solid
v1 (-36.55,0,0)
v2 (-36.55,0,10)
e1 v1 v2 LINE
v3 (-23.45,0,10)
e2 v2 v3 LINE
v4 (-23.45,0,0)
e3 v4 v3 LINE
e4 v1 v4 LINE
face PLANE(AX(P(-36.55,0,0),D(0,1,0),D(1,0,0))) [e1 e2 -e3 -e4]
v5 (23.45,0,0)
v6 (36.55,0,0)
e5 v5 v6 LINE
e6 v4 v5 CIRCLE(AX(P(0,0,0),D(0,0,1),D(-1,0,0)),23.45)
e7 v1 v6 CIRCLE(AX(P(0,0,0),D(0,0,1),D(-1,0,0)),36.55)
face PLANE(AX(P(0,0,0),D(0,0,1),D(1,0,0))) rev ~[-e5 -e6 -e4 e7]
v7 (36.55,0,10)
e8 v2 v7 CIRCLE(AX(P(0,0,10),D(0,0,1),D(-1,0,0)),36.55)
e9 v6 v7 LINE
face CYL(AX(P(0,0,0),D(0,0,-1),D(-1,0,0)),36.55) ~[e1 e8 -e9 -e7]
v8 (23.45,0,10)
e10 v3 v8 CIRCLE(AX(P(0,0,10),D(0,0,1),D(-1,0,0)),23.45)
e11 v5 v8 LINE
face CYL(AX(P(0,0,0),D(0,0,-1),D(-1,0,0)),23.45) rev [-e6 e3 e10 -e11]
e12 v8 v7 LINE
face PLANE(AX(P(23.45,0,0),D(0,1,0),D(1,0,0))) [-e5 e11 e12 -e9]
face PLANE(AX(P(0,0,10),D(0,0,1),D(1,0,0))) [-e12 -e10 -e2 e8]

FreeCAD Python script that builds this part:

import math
import FreeCAD as App
import Part
import Sketcher

V = App.Vector

doc = App.newDocument("Part")
body = doc.addObject("PartDesign::Body", "Body")

# Sketch on XY plane
sketch1 = body.newObject("Sketcher::SketchObject", "Sketch")
sketch1.AttachmentSupport = (doc.getObject("XY_Plane"), [""])
sketch1.MapMode = "FlatFace"
sketch1.addGeometry([
    Part.ArcOfCircle(Part.Circle(V(0, 0, 0), V(0, 0, 1), 23.45), math.radians(180), math.radians(360)),
    Part.LineSegment(V(-23.45, 0, 0), V(-36.55, 0, 0)),
    Part.ArcOfCircle(Part.Circle(V(0, 0, 0), V(0, 0, 1), 36.55), math.radians(180), math.radians(360)),
    Part.LineSegment(V(36.55, 0, 0), V(23.45, 0, 0)),
], False)
sketch1.addConstraint([
    Sketcher.Constraint("Coincident", 0, 1, 1, 1),
    Sketcher.Constraint("Coincident", 1, 2, 2, 1),
    Sketcher.Constraint("Coincident", 2, 2, 3, 1),
    Sketcher.Constraint("Coincident", 3, 2, 0, 2),
    Sketcher.Constraint("Horizontal", 1),
    Sketcher.Constraint("Horizontal", 3),
    Sketcher.Constraint("Coincident", 0, 3, -1, 1),
    Sketcher.Constraint("Coincident", 2, 3, -1, 1),
    Sketcher.Constraint("PointOnObject", 0, 1, -1),
    Sketcher.Constraint("PointOnObject", 2, 2, -1),
    Sketcher.Constraint("Radius", 0, 23.45),
    Sketcher.Constraint("Radius", 2, 36.55),
])
pad1 = body.newObject("PartDesign::Pad", "Pad")
pad1.Profile = sketch1
pad1.Length = 10

doc.recompute()
